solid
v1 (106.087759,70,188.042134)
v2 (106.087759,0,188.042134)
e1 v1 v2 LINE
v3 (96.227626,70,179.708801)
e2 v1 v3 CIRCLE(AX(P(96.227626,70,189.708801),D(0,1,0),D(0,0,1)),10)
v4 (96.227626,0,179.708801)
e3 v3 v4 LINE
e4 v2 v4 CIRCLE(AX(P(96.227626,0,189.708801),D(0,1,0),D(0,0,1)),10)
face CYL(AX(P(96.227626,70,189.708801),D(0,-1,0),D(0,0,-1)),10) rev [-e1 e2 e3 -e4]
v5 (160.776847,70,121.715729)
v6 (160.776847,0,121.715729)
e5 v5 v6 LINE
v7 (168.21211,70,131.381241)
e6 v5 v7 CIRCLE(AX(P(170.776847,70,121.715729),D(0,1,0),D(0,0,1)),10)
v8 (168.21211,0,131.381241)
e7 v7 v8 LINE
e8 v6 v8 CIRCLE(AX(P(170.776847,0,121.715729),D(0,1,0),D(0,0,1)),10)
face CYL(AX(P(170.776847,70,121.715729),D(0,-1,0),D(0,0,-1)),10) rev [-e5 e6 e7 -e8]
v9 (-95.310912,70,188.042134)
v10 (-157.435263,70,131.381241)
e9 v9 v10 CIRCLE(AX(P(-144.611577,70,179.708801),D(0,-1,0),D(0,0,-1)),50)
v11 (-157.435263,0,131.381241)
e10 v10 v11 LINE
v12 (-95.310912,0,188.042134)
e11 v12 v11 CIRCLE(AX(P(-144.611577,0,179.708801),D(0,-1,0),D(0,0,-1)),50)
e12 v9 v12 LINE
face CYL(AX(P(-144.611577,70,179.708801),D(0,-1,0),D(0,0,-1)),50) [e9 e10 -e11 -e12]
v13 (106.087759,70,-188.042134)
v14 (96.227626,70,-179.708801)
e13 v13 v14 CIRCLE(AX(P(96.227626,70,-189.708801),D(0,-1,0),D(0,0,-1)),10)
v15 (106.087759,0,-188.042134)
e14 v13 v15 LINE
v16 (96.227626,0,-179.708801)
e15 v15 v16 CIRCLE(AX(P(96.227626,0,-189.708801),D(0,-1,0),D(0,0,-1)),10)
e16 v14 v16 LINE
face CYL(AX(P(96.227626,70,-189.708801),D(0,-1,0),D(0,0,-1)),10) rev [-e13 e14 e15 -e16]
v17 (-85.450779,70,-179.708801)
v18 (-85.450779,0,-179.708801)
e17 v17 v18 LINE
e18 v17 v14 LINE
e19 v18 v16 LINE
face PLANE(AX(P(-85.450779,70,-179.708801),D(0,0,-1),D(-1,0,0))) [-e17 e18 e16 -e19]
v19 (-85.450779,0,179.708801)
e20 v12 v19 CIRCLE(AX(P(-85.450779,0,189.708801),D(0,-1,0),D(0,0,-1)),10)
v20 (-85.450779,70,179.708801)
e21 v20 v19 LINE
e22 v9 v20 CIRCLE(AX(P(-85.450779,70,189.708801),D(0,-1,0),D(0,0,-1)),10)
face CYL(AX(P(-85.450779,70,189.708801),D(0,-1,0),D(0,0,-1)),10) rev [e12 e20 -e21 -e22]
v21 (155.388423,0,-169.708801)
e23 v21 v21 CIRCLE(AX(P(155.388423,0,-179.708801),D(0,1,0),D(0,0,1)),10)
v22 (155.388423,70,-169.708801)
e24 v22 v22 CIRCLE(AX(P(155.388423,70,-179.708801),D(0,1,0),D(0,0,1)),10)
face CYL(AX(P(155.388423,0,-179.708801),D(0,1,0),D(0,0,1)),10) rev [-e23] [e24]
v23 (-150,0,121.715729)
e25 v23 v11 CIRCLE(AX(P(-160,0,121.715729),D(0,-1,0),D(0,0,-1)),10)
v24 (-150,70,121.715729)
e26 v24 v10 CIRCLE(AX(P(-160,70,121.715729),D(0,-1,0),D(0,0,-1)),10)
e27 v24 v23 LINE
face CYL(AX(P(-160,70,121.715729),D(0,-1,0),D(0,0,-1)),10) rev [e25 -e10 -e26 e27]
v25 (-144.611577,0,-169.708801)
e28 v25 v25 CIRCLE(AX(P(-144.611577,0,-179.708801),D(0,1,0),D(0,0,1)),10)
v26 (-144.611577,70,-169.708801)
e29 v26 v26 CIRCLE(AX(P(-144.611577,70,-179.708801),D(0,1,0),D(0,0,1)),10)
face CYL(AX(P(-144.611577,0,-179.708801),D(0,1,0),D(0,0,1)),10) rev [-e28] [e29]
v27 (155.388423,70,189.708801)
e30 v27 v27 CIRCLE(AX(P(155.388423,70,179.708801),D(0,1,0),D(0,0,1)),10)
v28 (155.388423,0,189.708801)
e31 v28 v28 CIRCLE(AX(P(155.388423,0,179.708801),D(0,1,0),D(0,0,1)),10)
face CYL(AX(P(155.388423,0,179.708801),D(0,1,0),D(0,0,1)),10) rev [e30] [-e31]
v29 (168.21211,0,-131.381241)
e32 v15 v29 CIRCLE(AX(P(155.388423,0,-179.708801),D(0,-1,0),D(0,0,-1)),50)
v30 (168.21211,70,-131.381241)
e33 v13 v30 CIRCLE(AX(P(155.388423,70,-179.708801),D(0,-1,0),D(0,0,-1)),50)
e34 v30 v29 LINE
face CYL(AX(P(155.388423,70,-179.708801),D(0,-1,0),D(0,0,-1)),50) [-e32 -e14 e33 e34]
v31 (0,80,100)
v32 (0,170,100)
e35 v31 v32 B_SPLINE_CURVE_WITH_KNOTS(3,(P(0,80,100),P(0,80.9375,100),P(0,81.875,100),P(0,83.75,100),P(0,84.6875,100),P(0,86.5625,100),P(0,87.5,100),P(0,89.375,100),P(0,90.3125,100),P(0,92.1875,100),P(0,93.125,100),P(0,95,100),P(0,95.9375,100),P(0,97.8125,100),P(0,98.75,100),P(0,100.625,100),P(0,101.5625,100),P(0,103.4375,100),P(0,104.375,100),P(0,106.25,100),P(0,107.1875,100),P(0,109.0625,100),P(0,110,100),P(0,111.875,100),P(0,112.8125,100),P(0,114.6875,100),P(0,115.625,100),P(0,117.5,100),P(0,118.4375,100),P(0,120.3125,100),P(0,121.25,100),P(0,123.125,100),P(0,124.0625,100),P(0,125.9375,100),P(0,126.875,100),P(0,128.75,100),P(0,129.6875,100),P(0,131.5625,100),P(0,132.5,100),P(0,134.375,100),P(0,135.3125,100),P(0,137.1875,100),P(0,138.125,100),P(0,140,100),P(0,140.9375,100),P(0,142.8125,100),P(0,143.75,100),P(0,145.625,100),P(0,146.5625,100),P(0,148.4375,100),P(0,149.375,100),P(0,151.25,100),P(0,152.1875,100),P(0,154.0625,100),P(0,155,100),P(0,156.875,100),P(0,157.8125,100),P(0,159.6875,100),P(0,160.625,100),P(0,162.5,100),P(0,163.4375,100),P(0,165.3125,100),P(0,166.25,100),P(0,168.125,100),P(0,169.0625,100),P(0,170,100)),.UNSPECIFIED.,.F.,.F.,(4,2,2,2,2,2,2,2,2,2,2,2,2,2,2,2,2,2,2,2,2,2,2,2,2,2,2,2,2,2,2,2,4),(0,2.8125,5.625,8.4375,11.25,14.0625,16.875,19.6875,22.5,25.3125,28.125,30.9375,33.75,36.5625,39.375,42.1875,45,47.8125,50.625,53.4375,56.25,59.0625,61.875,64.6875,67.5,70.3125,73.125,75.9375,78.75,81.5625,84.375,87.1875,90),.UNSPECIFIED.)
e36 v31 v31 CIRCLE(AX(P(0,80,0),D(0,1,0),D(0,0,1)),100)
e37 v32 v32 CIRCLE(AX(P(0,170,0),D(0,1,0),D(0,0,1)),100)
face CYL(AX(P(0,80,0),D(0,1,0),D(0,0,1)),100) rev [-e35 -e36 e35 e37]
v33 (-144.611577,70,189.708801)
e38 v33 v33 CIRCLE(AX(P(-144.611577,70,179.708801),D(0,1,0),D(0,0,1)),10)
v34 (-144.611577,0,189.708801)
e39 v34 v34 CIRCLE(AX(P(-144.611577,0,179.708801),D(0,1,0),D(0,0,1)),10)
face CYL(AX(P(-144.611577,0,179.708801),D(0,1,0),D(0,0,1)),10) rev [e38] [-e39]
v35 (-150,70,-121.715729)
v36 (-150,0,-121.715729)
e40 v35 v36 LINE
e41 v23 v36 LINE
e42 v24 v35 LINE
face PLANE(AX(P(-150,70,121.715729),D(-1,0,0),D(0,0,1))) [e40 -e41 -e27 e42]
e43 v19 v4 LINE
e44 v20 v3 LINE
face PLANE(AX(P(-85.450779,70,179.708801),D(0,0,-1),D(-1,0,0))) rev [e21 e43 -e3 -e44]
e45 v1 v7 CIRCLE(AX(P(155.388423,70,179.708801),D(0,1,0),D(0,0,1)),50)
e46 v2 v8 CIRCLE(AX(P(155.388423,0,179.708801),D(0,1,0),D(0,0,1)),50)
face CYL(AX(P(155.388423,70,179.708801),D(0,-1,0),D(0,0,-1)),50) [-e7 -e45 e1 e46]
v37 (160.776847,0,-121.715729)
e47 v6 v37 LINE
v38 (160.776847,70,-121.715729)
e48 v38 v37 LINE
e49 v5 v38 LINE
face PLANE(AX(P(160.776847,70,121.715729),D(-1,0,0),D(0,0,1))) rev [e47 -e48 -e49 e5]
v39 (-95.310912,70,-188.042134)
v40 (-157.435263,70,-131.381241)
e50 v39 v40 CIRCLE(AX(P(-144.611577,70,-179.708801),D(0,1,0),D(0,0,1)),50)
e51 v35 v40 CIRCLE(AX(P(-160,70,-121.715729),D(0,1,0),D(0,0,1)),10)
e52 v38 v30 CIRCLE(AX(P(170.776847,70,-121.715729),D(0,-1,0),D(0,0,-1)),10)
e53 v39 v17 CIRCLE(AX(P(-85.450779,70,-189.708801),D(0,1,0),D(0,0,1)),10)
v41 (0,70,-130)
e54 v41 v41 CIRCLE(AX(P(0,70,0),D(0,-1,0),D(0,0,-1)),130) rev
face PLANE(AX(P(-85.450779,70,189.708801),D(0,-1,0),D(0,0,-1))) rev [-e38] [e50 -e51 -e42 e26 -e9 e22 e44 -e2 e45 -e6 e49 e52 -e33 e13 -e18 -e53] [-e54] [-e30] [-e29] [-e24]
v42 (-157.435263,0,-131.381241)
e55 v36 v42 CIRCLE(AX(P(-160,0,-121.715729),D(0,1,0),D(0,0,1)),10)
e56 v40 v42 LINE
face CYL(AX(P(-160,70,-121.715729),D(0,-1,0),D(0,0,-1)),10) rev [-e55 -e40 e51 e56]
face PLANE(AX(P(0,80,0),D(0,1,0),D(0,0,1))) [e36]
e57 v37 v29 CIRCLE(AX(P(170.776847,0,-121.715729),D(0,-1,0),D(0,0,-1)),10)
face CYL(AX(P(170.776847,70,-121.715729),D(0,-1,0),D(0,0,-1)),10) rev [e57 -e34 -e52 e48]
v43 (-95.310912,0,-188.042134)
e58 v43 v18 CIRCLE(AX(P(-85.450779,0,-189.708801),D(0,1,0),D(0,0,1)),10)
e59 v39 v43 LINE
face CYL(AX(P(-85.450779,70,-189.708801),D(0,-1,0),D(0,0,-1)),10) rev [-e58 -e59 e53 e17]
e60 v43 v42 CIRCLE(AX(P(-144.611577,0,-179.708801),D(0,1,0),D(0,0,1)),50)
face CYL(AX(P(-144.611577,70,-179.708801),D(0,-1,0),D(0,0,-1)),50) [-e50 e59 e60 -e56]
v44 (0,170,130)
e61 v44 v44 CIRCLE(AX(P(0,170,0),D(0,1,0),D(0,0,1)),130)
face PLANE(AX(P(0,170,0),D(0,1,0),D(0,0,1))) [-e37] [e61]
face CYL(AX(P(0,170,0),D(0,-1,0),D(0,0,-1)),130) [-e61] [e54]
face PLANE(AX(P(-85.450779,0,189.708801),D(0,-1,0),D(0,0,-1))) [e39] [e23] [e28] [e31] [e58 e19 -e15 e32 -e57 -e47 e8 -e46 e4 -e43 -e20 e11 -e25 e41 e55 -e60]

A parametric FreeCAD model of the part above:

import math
import FreeCAD as App
import Part
import Sketcher
Q = App.Units.Quantity

doc = App.newDocument("Part")
body = doc.addObject("PartDesign::Body", "Body")

# Sketch on XZ plane
sketch1 = doc.addObject("Sketcher::SketchObject", "Sketch")
body.addObject(sketch1)
sketch1.AttachmentSupport = (doc.XZ_Plane, [""])
sketch1.MapMode = "FlatFace"
sketch1.addGeometry([
    Part.LineSegment(App.Vector(96, -180, 0), App.Vector(-85, -180, 0)),  # 0
    Part.ArcOfCircle(Part.Circle(App.Vector(-85, -190, 0), App.Vector(0, 0, 1), 10), math.radians(90), math.radians(170)),  # 1
    Part.ArcOfCircle(Part.Circle(App.Vector(-145, -180, 0), App.Vector(0, 0, 1), 50), math.radians(105), math.radians(350)),  # 2
    Part.ArcOfCircle(Part.Circle(App.Vector(-160, -122, 0), App.Vector(0, 0, 1), 10), math.radians(-75), math.radians(0)),  # 3
    Part.LineSegment(App.Vector(-150, -122, 0), App.Vector(-150, 122, 0)),  # 4
    Part.ArcOfCircle(Part.Circle(App.Vector(-160, 122, 0), App.Vector(0, 0, 1), 10), math.radians(0), math.radians(75)),  # 5
    Part.ArcOfCircle(Part.Circle(App.Vector(-145, 180, 0), App.Vector(0, 0, 1), 50), math.radians(10), math.radians(255)),  # 6
    Part.ArcOfCircle(Part.Circle(App.Vector(-85, 190, 0), App.Vector(0, 0, 1), 10), math.radians(-170), math.radians(-90)),  # 7
    Part.LineSegment(App.Vector(-85, 180, 0), App.Vector(96, 180, 0)),  # 8
    Part.ArcOfCircle(Part.Circle(App.Vector(96, 190, 0), App.Vector(0, 0, 1), 10), math.radians(-90), math.radians(-10)),  # 9
    Part.ArcOfCircle(Part.Circle(App.Vector(155, 180, 0), App.Vector(0, 0, 1), 50), math.radians(-75), math.radians(170)),  # 10
    Part.ArcOfCircle(Part.Circle(App.Vector(171, 122, 0), App.Vector(0, 0, 1), 10), math.radians(105), math.radians(180)),  # 11
    Part.LineSegment(App.Vector(161, 122, 0), App.Vector(161, -122, 0)),  # 12
    Part.ArcOfCircle(Part.Circle(App.Vector(171, -122, 0), App.Vector(0, 0, 1), 10), math.radians(-180), math.radians(-105)),  # 13
    Part.ArcOfCircle(Part.Circle(App.Vector(155, -180, 0), App.Vector(0, 0, 1), 50), math.radians(-170), math.radians(75)),  # 14
    Part.ArcOfCircle(Part.Circle(App.Vector(96, -190, 0), App.Vector(0, 0, 1), 10), math.radians(10), math.radians(90)),  # 15
], False)
sketch1.addConstraint([
    Sketcher.Constraint("Tangent", 0, 2, 1, 1),
    Sketcher.Constraint("Tangent", 1, 2, 2, 2),
    Sketcher.Constraint("Tangent", 2, 1, 3, 1),
    Sketcher.Constraint("Tangent", 3, 2, 4, 1),
    Sketcher.Constraint("Tangent", 4, 2, 5, 1),
    Sketcher.Constraint("Tangent", 5, 2, 6, 2),
    Sketcher.Constraint("Tangent", 6, 1, 7, 1),
    Sketcher.Constraint("Tangent", 7, 2, 8, 1),
    Sketcher.Constraint("Tangent", 8, 2, 9, 1),
    Sketcher.Constraint("Tangent", 9, 2, 10, 2),
    Sketcher.Constraint("Tangent", 10, 1, 11, 1),
    Sketcher.Constraint("Tangent", 11, 2, 12, 1),
    Sketcher.Constraint("Tangent", 12, 2, 13, 1),
    Sketcher.Constraint("Tangent", 13, 2, 14, 2),
    Sketcher.Constraint("Tangent", 14, 1, 15, 1),
    Sketcher.Constraint("Tangent", 15, 2, 0, 1),
    Sketcher.Constraint("Horizontal", 0),
    Sketcher.Constraint("Vertical", 4),
    Sketcher.Constraint("Horizontal", 8),
    Sketcher.Constraint("Vertical", 12),
    Sketcher.Constraint("Equal", 1, 3),
    Sketcher.Constraint("Equal", 3, 5),
    Sketcher.Constraint("Equal", 2, 6),
    Sketcher.Constraint("Equal", 5, 7),
    Sketcher.Constraint("Equal", 7, 9),
    Sketcher.Constraint("Equal", 6, 10),
    Sketcher.Constraint("Equal", 9, 11),
    Sketcher.Constraint("Equal", 11, 13),
    Sketcher.Constraint("Equal", 10, 14),
    Sketcher.Constraint("Equal", 13, 15),
    Sketcher.Constraint("Symmetric", 2, 3, 6, 3, -1),
    Sketcher.Constraint("Symmetric", 10, 3, 14, 3, -1),
    Sketcher.Constraint("Horizontal", 6, 3, 10, 3),
    Sketcher.Constraint("Horizontal", 5, 3, 11, 3),
    Sketcher.Constraint("Horizontal", 14, 3, 0, 2),
    Sketcher.Constraint("Horizontal", 10, 3, 7, 2),
    Sketcher.Constraint("Radius", 1, Q("10 mm")),
    Sketcher.Constraint("Radius", 2, Q("50 mm")),
    Sketcher.Constraint("DistanceX", 3, 3, -1, 1, Q("160 mm")),
    Sketcher.Constraint("DistanceX", 6, 3, 10, 3, Q("300 mm")),
    Sketcher.Constraint("DistanceY", 1, 3, -1, 1, Q("189.708801 mm")),
    Sketcher.Constraint("DistanceY", 4, 1, 4, 2, Q("243.431458 mm")),
])
pad1 = doc.addObject("PartDesign::Pad", "Pad")
body.addObject(pad1)
pad1.Profile = sketch1
pad1.Length = 70
pad1.Reversed = True

# Sketch on XZ plane
sketch2 = doc.addObject("Sketcher::SketchObject", "Sketch001")
body.addObject(sketch2)
sketch2.AttachmentSupport = (doc.XZ_Plane, [""])
sketch2.MapMode = "FlatFace"
sketch2.AttachmentOffset = App.Placement(App.Vector(0, 0, -70), App.Rotation())
sketch2.addGeometry(Part.Circle(App.Vector(0, 0, 0), App.Vector(0, 0, 1), 130), False)
sketch2.addConstraint([
    Sketcher.Constraint("Coincident", 0, 3, -1, 1),
    Sketcher.Constraint("Diameter", 0, Q("260 mm")),
])
pad2 = doc.addObject("PartDesign::Pad", "Pad001")
body.addObject(pad2)
pad2.Profile = sketch2
pad2.Length = 100
pad2.Reversed = True

# Sketch on XZ plane
sketch3 = doc.addObject("Sketcher::SketchObject", "Sketch002")
body.addObject(sketch3)
sketch3.AttachmentSupport = (doc.XZ_Plane, [""])
sketch3.MapMode = "FlatFace"
sketch3.AttachmentOffset = App.Placement(App.Vector(0, 0, -70), App.Rotation())
sketch3.addGeometry([
    Part.Circle(App.Vector(-145, 180, 0), App.Vector(0, 0, 1), 10),
    Part.Circle(App.Vector(-145, -180, 0), App.Vector(0, 0, 1), 10),
    Part.Circle(App.Vector(155, 180, 0), App.Vector(0, 0, 1), 10),
    Part.Circle(App.Vector(155, -180, 0), App.Vector(0, 0, 1), 10),
], False)
sketch3.addConstraint([
    Sketcher.Constraint("Equal", 0, 1),
    Sketcher.Constraint("Equal", 1, 2),
    Sketcher.Constraint("Equal", 2, 3),
    Sketcher.Constraint("Symmetric", 0, 3, 1, 3, -1),
    Sketcher.Constraint("Symmetric", 2, 3, 3, 3, -1),
    Sketcher.Constraint("Horizontal", 0, 3, 2, 3),
    Sketcher.Constraint("Diameter", 0, Q("20 mm")),
    Sketcher.Constraint("DistanceX", 0, 3, 2, 3, Q("300 mm")),
    Sketcher.Constraint("DistanceY", -1, 1, 0, 3, Q("179.708801 mm")),
    Sketcher.Constraint("DistanceX", 0, 3, -1, 1, Q("144.611577 mm")),
])
pocket1 = doc.addObject("PartDesign::Pocket", "Pocket")
body.addObject(pocket1)
pocket1.Profile = sketch3
pocket1.Type = "ThroughAll"
pocket1.Reversed = True

# Sketch on XZ plane
sketch4 = doc.addObject("Sketcher::SketchObject", "Sketch003")
body.addObject(sketch4)
sketch4.AttachmentSupport = (doc.XZ_Plane, [""])
sketch4.MapMode = "FlatFace"
sketch4.AttachmentOffset = App.Placement(App.Vector(0, 0, -170), App.Rotation())
sketch4.addGeometry(Part.Circle(App.Vector(0, 0, 0), App.Vector(0, 0, 1), 100), False)
sketch4.addConstraint([
    Sketcher.Constraint("Coincident", 0, 3, -1, 1),
    Sketcher.Constraint("Diameter", 0, Q("200 mm")),
])
pocket2 = doc.addObject("PartDesign::Pocket", "Pocket001")
body.addObject(pocket2)
pocket2.Profile = sketch4
pocket2.Length = 90
pocket2.Reversed = True

doc.recompute()
